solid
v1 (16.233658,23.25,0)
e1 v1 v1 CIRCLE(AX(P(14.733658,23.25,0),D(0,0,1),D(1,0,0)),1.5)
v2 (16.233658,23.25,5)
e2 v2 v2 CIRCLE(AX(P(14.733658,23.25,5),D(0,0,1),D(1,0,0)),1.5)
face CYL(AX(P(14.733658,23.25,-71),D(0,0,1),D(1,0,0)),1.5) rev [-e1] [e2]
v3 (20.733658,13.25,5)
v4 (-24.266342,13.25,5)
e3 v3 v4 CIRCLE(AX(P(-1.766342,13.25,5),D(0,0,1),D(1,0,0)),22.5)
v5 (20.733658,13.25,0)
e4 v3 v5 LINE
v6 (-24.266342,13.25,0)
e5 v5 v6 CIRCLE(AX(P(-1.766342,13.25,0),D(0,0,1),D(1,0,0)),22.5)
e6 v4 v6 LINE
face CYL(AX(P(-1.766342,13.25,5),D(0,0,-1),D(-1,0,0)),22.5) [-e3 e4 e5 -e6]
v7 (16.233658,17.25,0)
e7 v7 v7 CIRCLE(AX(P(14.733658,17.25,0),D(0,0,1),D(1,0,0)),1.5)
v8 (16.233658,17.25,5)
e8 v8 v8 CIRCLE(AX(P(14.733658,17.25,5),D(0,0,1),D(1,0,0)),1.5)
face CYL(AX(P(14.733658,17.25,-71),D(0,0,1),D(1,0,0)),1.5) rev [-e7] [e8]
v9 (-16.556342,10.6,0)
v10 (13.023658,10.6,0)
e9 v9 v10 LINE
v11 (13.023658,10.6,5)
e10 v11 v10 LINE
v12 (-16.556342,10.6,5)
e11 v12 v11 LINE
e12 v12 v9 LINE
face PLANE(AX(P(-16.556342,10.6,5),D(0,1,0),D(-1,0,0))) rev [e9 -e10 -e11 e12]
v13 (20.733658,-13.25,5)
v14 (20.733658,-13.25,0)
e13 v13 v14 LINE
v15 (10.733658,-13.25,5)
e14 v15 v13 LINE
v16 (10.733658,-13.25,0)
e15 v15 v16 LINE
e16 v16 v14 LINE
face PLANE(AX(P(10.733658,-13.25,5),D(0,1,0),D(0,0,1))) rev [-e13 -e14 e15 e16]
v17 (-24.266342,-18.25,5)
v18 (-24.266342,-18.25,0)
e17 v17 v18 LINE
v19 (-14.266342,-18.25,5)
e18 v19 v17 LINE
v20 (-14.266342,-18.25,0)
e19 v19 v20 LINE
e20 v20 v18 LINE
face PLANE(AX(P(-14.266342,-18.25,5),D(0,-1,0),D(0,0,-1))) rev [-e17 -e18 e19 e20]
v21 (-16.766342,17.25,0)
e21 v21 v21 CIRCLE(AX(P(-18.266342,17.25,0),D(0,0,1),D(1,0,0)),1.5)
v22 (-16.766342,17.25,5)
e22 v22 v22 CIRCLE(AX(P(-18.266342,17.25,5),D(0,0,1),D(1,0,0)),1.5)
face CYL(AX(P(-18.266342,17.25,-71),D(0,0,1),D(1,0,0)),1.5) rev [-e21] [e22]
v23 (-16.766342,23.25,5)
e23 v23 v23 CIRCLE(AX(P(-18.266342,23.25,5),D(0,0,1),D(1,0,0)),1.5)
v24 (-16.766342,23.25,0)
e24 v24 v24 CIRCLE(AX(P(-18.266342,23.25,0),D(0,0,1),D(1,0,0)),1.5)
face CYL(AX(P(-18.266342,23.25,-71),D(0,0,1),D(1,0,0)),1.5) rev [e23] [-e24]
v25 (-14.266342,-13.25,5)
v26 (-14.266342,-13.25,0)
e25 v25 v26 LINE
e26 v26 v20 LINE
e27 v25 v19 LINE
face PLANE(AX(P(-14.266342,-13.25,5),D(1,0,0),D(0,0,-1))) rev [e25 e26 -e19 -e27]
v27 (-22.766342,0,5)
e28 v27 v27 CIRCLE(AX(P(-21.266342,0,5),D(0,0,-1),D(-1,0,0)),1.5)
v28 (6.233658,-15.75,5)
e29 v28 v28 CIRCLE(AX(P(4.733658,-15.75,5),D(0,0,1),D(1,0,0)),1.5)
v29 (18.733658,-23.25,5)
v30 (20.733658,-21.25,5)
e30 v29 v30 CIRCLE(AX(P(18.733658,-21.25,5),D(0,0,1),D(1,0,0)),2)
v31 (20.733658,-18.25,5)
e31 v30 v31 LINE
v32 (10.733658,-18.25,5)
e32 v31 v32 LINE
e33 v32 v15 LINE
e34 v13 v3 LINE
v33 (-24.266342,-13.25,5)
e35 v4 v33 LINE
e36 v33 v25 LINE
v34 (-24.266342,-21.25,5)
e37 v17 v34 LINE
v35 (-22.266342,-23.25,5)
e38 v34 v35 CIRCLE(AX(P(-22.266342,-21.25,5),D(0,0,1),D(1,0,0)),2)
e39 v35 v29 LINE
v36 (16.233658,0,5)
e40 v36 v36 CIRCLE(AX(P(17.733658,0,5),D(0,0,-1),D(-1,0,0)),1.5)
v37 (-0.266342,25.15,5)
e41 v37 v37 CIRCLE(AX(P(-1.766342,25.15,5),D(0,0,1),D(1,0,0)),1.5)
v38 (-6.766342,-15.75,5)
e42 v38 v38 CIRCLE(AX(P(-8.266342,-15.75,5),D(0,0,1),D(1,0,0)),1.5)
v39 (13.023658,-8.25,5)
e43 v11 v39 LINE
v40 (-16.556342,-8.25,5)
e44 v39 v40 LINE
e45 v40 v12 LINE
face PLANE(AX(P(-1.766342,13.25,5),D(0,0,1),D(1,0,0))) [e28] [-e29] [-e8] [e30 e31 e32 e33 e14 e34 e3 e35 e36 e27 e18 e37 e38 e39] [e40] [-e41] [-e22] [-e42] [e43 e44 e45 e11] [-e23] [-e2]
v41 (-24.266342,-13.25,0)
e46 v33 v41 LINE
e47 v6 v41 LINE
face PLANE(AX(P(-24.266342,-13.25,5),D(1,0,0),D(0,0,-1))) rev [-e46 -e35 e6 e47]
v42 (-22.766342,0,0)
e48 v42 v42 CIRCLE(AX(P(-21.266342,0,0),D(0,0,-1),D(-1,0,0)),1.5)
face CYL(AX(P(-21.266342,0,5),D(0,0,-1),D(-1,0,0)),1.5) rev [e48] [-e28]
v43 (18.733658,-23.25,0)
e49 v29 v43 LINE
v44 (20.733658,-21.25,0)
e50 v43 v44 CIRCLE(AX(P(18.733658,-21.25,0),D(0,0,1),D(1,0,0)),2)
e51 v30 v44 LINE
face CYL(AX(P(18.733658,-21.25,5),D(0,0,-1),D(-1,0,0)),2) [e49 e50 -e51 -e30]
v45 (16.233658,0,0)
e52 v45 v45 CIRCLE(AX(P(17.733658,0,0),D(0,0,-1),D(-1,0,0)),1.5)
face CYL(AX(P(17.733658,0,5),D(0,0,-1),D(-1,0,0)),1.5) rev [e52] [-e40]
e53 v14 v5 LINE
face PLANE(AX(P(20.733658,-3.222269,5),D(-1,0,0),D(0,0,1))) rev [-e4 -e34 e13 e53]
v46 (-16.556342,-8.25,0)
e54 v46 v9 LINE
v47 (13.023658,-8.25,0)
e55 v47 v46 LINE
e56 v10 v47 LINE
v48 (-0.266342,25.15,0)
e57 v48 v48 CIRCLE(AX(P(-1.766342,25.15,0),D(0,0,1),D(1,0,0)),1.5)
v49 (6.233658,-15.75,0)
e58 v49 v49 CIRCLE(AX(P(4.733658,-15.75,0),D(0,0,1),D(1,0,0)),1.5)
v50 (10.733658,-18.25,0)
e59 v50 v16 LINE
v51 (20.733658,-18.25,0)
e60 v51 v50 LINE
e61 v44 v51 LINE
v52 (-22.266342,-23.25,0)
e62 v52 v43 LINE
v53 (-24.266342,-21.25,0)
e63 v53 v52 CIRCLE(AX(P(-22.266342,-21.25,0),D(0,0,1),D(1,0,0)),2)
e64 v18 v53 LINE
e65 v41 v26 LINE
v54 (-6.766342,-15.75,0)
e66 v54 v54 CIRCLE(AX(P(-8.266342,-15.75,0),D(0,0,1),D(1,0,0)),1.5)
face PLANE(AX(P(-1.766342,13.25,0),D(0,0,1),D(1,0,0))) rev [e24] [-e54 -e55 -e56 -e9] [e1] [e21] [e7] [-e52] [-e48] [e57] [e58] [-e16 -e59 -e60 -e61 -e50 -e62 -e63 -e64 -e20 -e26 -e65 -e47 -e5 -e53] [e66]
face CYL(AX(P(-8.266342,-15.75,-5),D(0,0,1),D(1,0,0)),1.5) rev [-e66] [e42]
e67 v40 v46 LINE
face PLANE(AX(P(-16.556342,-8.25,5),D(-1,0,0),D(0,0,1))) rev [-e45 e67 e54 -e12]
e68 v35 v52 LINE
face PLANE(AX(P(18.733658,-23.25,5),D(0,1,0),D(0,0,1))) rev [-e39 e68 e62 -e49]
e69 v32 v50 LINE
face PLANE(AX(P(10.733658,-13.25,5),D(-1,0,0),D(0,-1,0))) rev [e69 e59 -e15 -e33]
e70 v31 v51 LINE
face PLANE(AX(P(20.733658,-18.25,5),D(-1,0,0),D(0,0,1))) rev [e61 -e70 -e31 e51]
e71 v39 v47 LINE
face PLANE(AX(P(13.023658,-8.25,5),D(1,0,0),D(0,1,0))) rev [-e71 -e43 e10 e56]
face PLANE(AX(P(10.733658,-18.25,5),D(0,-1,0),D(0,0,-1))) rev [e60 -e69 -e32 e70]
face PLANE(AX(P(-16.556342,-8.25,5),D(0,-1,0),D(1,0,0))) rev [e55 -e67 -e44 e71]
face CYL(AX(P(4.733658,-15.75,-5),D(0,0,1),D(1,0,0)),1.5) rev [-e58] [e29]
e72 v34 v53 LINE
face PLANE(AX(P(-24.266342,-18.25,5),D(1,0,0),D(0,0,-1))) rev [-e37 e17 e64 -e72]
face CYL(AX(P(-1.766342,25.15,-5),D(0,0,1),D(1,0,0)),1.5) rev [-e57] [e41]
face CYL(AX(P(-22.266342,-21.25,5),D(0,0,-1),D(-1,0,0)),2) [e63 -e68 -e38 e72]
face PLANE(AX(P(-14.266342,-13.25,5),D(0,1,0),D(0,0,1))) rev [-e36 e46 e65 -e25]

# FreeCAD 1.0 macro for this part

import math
import FreeCAD as App
import Part
import Sketcher


def add_polygon(sketch, points):
    """Adds a closed chain of lines whose ends are joined by coincident constraints."""
    first, n = sketch.GeometryCount, len(points)
    for a, b in zip(points, points[1:] + points[:1]):
        sketch.addGeometry(Part.LineSegment(App.Vector(*a, 0), App.Vector(*b, 0)), False)
    for i in range(n):
        sketch.addConstraint(Sketcher.Constraint("Coincident", first + i, 2, first + (i + 1) % n, 1))

doc = App.newDocument("Part")
body = doc.addObject("PartDesign::Body", "Body")

sketch1 = body.newObject("Sketcher::SketchObject", "Sketch")
sketch1.AttachmentSupport = (doc.getObject("XY_Plane"), [""])
sketch1.MapMode = "FlatFace"
sketch1.addGeometry([
    Part.ArcOfCircle(Part.Circle(App.Vector(-1.8, 13.2, 0), App.Vector(0, 0, 1), 22.5), math.radians(0), math.radians(180)),
    Part.LineSegment(App.Vector(-24.3, 13.2, 0), App.Vector(-24.3, -13.2, 0)),
    Part.LineSegment(App.Vector(-24.3, -13.2, 0), App.Vector(-14.3, -13.2, 0)),
    Part.LineSegment(App.Vector(-14.3, -13.2, 0), App.Vector(-14.3, -18.2, 0)),
    Part.LineSegment(App.Vector(-14.3, -18.2, 0), App.Vector(-24.3, -18.2, 0)),
    Part.LineSegment(App.Vector(-24.3, -18.2, 0), App.Vector(-24.3, -21.2, 0)),
    Part.ArcOfCircle(Part.Circle(App.Vector(-22.3, -21.2, 0), App.Vector(0, 0, 1), 2), math.radians(-180), math.radians(-90)),
    Part.LineSegment(App.Vector(-22.3, -23.2, 0), App.Vector(18.7, -23.2, 0)),
    Part.ArcOfCircle(Part.Circle(App.Vector(18.7, -21.2, 0), App.Vector(0, 0, 1), 2), math.radians(-90), math.radians(0)),
    Part.LineSegment(App.Vector(20.7, -21.2, 0), App.Vector(20.7, -18.2, 0)),
    Part.LineSegment(App.Vector(20.7, -18.2, 0), App.Vector(10.7, -18.2, 0)),
    Part.LineSegment(App.Vector(10.7, -18.2, 0), App.Vector(10.7, -13.2, 0)),
    Part.LineSegment(App.Vector(10.7, -13.2, 0), App.Vector(20.7, -13.2, 0)),
    Part.LineSegment(App.Vector(20.7, -13.2, 0), App.Vector(20.7, 13.2, 0)),
], False)
sketch1.addConstraint([
    Sketcher.Constraint("Tangent", 0, 2, 1, 1),
    Sketcher.Constraint("Coincident", 1, 2, 2, 1),
    Sketcher.Constraint("Coincident", 2, 2, 3, 1),
    Sketcher.Constraint("Coincident", 3, 2, 4, 1),
    Sketcher.Constraint("Coincident", 4, 2, 5, 1),
    Sketcher.Constraint("Tangent", 5, 2, 6, 1),
    Sketcher.Constraint("Tangent", 6, 2, 7, 1),
    Sketcher.Constraint("Tangent", 7, 2, 8, 1),
    Sketcher.Constraint("Tangent", 8, 2, 9, 1),
    Sketcher.Constraint("Coincident", 9, 2, 10, 1),
    Sketcher.Constraint("Coincident", 10, 2, 11, 1),
    Sketcher.Constraint("Coincident", 11, 2, 12, 1),
    Sketcher.Constraint("Coincident", 12, 2, 13, 1),
    Sketcher.Constraint("Tangent", 13, 2, 0, 1),
    Sketcher.Constraint("Vertical", 1),
    Sketcher.Constraint("Horizontal", 2),
    Sketcher.Constraint("Vertical", 3),
    Sketcher.Constraint("Horizontal", 4),
    Sketcher.Constraint("Vertical", 5),
    Sketcher.Constraint("Horizontal", 7),
    Sketcher.Constraint("Vertical", 9),
    Sketcher.Constraint("Horizontal", 10),
    Sketcher.Constraint("Vertical", 11),
    Sketcher.Constraint("Horizontal", 12),
    Sketcher.Constraint("Vertical", 13),
    Sketcher.Constraint("Equal", 6, 8),
    Sketcher.Constraint("Horizontal", 4, 2, 9, 2),
    Sketcher.Constraint("Horizontal", 2, 2, 11, 2),
    Sketcher.Constraint("Vertical", 1, 2, 4, 2),
    Sketcher.Constraint("Vertical", 9, 2, 12, 2),
    Sketcher.Constraint("Equal", 4, 10),
    Sketcher.Constraint("Radius", 6, 2.0),
    Sketcher.Constraint("Radius", 0, 22.5),
    Sketcher.Constraint("DistanceX", 2, 1, 2, 2, 10.0),
    Sketcher.Constraint("DistanceY", 3, 2, 3, 1, 5.0),
    Sketcher.Constraint("DistanceY", 5, 2, 5, 1, 3.0),
    Sketcher.Constraint("DistanceY", 1, 2, 1, 1, 26.5),
    Sketcher.Constraint("DistanceY", -1, 1, 0, 3, 13.25),
    Sketcher.Constraint("DistanceX", 0, 3, -1, 1, 1.766342),
])
pad1 = body.newObject("PartDesign::Pad", "Pad")
pad1.Profile = sketch1
pad1.Length = 5

sketch2 = body.newObject("Sketcher::SketchObject", "Sketch001")
sketch2.AttachmentSupport = (doc.getObject("XY_Plane"), [""])
sketch2.MapMode = "FlatFace"
add_polygon(sketch2, [(13, 11), (13, -8), (-17, -8), (-17, 11)])
sketch2.addConstraint([
    Sketcher.Constraint("Vertical", 0),
    Sketcher.Constraint("Horizontal", 1),
    Sketcher.Constraint("Vertical", 2),
    Sketcher.Constraint("Horizontal", 3),
    Sketcher.Constraint("DistanceX", 1, 2, 1, 1, 29.58),
    Sketcher.Constraint("DistanceY", 0, 2, 0, 1, 18.85),
    Sketcher.Constraint("DistanceY", -1, 1, 2, 2, 10.6),
    Sketcher.Constraint("DistanceX", -1, 1, 0, 2, 13.023658),
])
pocket1 = body.newObject("PartDesign::Pocket", "Pocket")
pocket1.Profile = sketch2
pocket1.Length = 5
pocket1.Reversed = True

sketch3 = body.newObject("Sketcher::SketchObject", "Sketch002")
sketch3.AttachmentSupport = (doc.getObject("XY_Plane"), [""])
sketch3.MapMode = "FlatFace"
sketch3.addGeometry([
    Part.Circle(App.Vector(17.7, 0, 0), App.Vector(0, 0, 1), 1.5),
    Part.Circle(App.Vector(-21.3, 0, 0), App.Vector(0, 0, 1), 1.5),
], False)
sketch3.addConstraint([
    Sketcher.Constraint("Equal", 0, 1),
    Sketcher.Constraint("PointOnObject", 0, 3, -1),
    Sketcher.Constraint("PointOnObject", 1, 3, -1),
    Sketcher.Constraint("Diameter", 0, 3.0),
    Sketcher.Constraint("DistanceX", 1, 3, 0, 3, 39.0),
    Sketcher.Constraint("DistanceX", -1, 1, 0, 3, 17.733658),
])
pocket2 = body.newObject("PartDesign::Pocket", "Pocket001")
pocket2.Profile = sketch3
pocket2.Length = 5
pocket2.Reversed = True

sketch4 = body.newObject("Sketcher::SketchObject", "Sketch003")
sketch4.AttachmentSupport = (doc.getObject("XY_Plane"), [""])
sketch4.MapMode = "FlatFace"
sketch4.AttachmentOffset = App.Placement(App.Vector(0, 0, 5), App.Rotation())
sketch4.addGeometry([
    Part.Circle(App.Vector(4.7, -15.8, 0), App.Vector(0, 0, 1), 1.5),
    Part.Circle(App.Vector(-8.3, -15.8, 0), App.Vector(0, 0, 1), 1.5),
], False)
sketch4.addConstraint([
    Sketcher.Constraint("Equal", 0, 1),
    Sketcher.Constraint("Horizontal", 0, 3, 1, 3),
    Sketcher.Constraint("Diameter", 0, 3.0),
    Sketcher.Constraint("DistanceX", 1, 3, 0, 3, 13.0),
    Sketcher.Constraint("DistanceY", 0, 3, -1, 1, 15.75),
    Sketcher.Constraint("DistanceX", -1, 1, 0, 3, 4.733658),
])
pocket3 = body.newObject("PartDesign::Pocket", "Pocket002")
pocket3.Profile = sketch4
pocket3.Length = 10

sketch5 = body.newObject("Sketcher::SketchObject", "Sketch004")
sketch5.AttachmentSupport = (doc.getObject("XY_Plane"), [""])
sketch5.MapMode = "FlatFace"
sketch5.AttachmentOffset = App.Placement(App.Vector(0, 0, 5), App.Rotation())
sketch5.addGeometry(Part.Circle(App.Vector(-1.8, 25.1, 0), App.Vector(0, 0, 1), 1.5), False)
sketch5.addConstraint([
    Sketcher.Constraint("Diameter", 0, 3.0),
    Sketcher.Constraint("DistanceY", -1, 1, 0, 3, 25.15),
    Sketcher.Constraint("DistanceX", 0, 3, -1, 1, 1.766342),
])
pocket4 = body.newObject("PartDesign::Pocket", "Pocket003")
pocket4.Profile = sketch5
pocket4.Length = 10

sketch6 = body.newObject("Sketcher::SketchObject", "Sketch005")
sketch6.AttachmentSupport = (doc.getObject("XY_Plane"), [""])
sketch6.MapMode = "FlatFace"
sketch6.AttachmentOffset = App.Placement(App.Vector(0, 0, 5), App.Rotation())
sketch6.addGeometry([
    Part.Circle(App.Vector(14.7, 17.2, 0), App.Vector(0, 0, 1), 1.5),
    Part.Circle(App.Vector(14.7, 23.2, 0), App.Vector(0, 0, 1), 1.5),
    Part.Circle(App.Vector(-18.3, 23.2, 0), App.Vector(0, 0, 1), 1.5),
    Part.Circle(App.Vector(-18.3, 17.2, 0), App.Vector(0, 0, 1), 1.5),
], False)
sketch6.addConstraint([
    Sketcher.Constraint("Equal", 0, 1),
    Sketcher.Constraint("Equal", 1, 2),
    Sketcher.Constraint("Equal", 2, 3),
    Sketcher.Constraint("Horizontal", 1, 3, 2, 3),
    Sketcher.Constraint("Horizontal", 0, 3, 3, 3),
    Sketcher.Constraint("Vertical", 0, 3, 1, 3),
    Sketcher.Constraint("Vertical", 2, 3, 3, 3),
    Sketcher.Constraint("Diameter", 0, 3.0),
    Sketcher.Constraint("DistanceY", 0, 3, 1, 3, 6.0),
    Sketcher.Constraint("DistanceX", 2, 3, 1, 3, 33.0),
    Sketcher.Constraint("DistanceY", -1, 1, 0, 3, 17.25),
    Sketcher.Constraint("DistanceX", -1, 1, 0, 3, 14.733658),
])
pocket5 = body.newObject("PartDesign::Pocket", "Pocket004")
pocket5.Profile = sketch6
pocket5.Length = 76

doc.recompute()
